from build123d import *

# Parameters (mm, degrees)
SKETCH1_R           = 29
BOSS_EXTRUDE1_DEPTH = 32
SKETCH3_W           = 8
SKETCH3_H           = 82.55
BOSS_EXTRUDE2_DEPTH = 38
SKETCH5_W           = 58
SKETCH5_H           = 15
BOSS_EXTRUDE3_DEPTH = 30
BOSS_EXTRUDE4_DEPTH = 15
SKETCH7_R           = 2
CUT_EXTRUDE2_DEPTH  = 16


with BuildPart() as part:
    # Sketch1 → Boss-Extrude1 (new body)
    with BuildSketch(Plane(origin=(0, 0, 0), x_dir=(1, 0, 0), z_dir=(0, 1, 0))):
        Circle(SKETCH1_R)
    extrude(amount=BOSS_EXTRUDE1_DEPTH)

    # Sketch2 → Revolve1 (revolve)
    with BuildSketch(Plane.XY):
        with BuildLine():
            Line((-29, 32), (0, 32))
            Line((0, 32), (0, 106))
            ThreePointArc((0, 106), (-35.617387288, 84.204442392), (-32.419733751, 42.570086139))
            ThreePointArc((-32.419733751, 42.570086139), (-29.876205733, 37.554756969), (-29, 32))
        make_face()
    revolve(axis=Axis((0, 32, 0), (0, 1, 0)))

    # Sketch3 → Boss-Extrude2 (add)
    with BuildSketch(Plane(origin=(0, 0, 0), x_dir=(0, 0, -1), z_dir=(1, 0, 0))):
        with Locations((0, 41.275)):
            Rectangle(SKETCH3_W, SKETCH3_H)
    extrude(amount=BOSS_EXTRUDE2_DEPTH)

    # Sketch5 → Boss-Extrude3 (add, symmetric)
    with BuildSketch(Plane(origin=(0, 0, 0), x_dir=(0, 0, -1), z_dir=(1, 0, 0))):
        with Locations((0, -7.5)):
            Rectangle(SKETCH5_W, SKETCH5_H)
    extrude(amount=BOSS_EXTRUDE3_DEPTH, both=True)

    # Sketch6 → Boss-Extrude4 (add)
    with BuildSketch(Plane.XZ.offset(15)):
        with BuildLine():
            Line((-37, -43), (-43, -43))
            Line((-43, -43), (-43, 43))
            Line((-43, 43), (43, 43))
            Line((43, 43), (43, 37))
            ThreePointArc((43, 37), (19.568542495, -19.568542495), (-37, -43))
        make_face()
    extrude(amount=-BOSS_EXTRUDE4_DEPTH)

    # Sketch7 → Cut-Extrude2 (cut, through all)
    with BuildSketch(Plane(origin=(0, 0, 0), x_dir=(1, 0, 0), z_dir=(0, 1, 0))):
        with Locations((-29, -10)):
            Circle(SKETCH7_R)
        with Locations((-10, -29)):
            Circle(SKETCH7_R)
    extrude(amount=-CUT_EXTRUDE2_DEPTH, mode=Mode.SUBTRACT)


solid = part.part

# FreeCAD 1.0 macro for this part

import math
import FreeCAD as App
import Part
import Sketcher

V = App.Vector

doc = App.newDocument("Part")
params = doc.addObject("Spreadsheet::Sheet", "Params")
for row, (alias, value) in enumerate([
    ("sketch1_diameter", "58 mm"),
    ("pad1_length", "32 mm"),
    ("sketch2_radius", "40 mm"),
    ("sketch2_width", "29 mm"),
    ("sketch2_height", "74 mm"),
    ("revolution_angle", "360 deg"),
    ("sketch3_height", "8 mm"),
    ("sketch3_width", "82.55 mm"),
    ("pad2_length", "38 mm"),
    ("sketch4_width", "15 mm"),
    ("sketch4_height", "58 mm"),
    ("pad3_length", "60 mm"),
    ("sketch5_radius", "80 mm"),
    ("sketch5_width", "6 mm"),
    ("pad4_length", "15 mm"),
    ("sketch6_diameter", "4 mm"),
], start=1):
    params.set(f"A{row}", alias)
    params.set(f"B{row}", "=" + value)
    params.setAlias(f"B{row}", alias)

body = doc.addObject("PartDesign::Body", "Body")

# Sketch on XZ plane
sketch1 = body.newObject("Sketcher::SketchObject", "Sketch")
sketch1.AttachmentSupport = (doc.getObject("XZ_Plane"), [""])
sketch1.MapMode = "FlatFace"
sketch1.addGeometry(Part.Circle(V(0, 0, 0), V(0, 0, 1), 29), False)
sketch1.addConstraint([
    Sketcher.Constraint("Coincident", 0, 3, -1, 1),
    Sketcher.Constraint("Diameter", 0, 58.0),
])
sketch1.setExpression("Constraints[1]", "Params.sketch1_diameter")
pad1 = body.newObject("PartDesign::Pad", "Pad")
pad1.Profile = sketch1
pad1.setExpression("Length", "Params.pad1_length")
pad1.Reversed = True

# Sketch on XY plane
sketch2 = body.newObject("Sketcher::SketchObject", "Sketch001")
sketch2.AttachmentSupport = (doc.getObject("XY_Plane"), [""])
sketch2.MapMode = "FlatFace"
sketch2.addGeometry([
    Part.LineSegment(V(-29, 32, 0), V(0, 32, 0)),
    Part.LineSegment(V(0, 32, 0), V(0, 106, 0)),
    Part.ArcOfCircle(Part.Circle(V(0, 66, 0), V(0, 0, 1), 40), math.radians(90), math.radians(216)),
    Part.ArcOfCircle(Part.Circle(V(-47, 32, 0), V(0, 0, 1), 18), math.radians(0), math.radians(36)),
], False)
sketch2.addConstraint([
    Sketcher.Constraint("Coincident", 0, 2, 1, 1),
    Sketcher.Constraint("Coincident", 1, 2, 2, 1),
    Sketcher.Constraint("Tangent", 2, 2, 3, 2),
    Sketcher.Constraint("Coincident", 3, 1, 0, 1),
    Sketcher.Constraint("Horizontal", 0),
    Sketcher.Constraint("Vertical", 1),
    Sketcher.Constraint("PointOnObject", 2, 3, -2),
    Sketcher.Constraint("PointOnObject", 0, 2, -2),
    Sketcher.Constraint("Horizontal", 3, 3, 0, 2),
    Sketcher.Constraint("Radius", 2, 40.0),
    Sketcher.Constraint("DistanceX", 0, 1, 0, 2, 29.0),
    Sketcher.Constraint("DistanceY", 1, 1, 1, 2, 74.0),
    Sketcher.Constraint("DistanceY", -1, 1, 2, 3, 66.0),
])
sketch2.setExpression("Constraints[9]", "Params.sketch2_radius")
sketch2.setExpression("Constraints[10]", "Params.sketch2_width")
sketch2.setExpression("Constraints[11]", "Params.sketch2_height")
revolution = body.newObject("PartDesign::Revolution", "Revolution")
revolution.Profile = sketch2
revolution.ReferenceAxis = (sketch2, ["V_Axis"])
revolution.setExpression("Angle", "Params.revolution_angle")

# Sketch on YZ plane
sketch3 = body.newObject("Sketcher::SketchObject", "Sketch002")
sketch3.AttachmentSupport = (doc.getObject("YZ_Plane"), [""])
sketch3.MapMode = "FlatFace"
sketch3.addGeometry([
    Part.LineSegment(V(83, 4, 0), V(0, 4, 0)),
    Part.LineSegment(V(0, 4, 0), V(0, -4, 0)),
    Part.LineSegment(V(0, -4, 0), V(83, -4, 0)),
    Part.LineSegment(V(83, -4, 0), V(83, 4, 0)),
], False)
sketch3.addConstraint([
    Sketcher.Constraint("Coincident", 0, 2, 1, 1),
    Sketcher.Constraint("Coincident", 1, 2, 2, 1),
    Sketcher.Constraint("Coincident", 2, 2, 3, 1),
    Sketcher.Constraint("Coincident", 3, 2, 0, 1),
    Sketcher.Constraint("Horizontal", 0),
    Sketcher.Constraint("Vertical", 1),
    Sketcher.Constraint("Horizontal", 2),
    Sketcher.Constraint("Vertical", 3),
    Sketcher.Constraint("Symmetric", 0, 2, 1, 2, -1, 1),
    Sketcher.Constraint("DistanceY", 1, 2, 1, 1, 8.0),
    Sketcher.Constraint("DistanceX", 0, 2, 0, 1, 82.55),
])
sketch3.setExpression("Constraints[9]", "Params.sketch3_height")
sketch3.setExpression("Constraints[10]", "Params.sketch3_width")
pad2 = body.newObject("PartDesign::Pad", "Pad001")
pad2.Profile = sketch3
pad2.setExpression("Length", "Params.pad2_length")

# Sketch on YZ plane
sketch4 = body.newObject("Sketcher::SketchObject", "Sketch003")
sketch4.AttachmentSupport = (doc.getObject("YZ_Plane"), [""])
sketch4.MapMode = "FlatFace"
sketch4.addGeometry([
    Part.LineSegment(V(0, 29, 0), V(-15, 29, 0)),
    Part.LineSegment(V(-15, 29, 0), V(-15, -29, 0)),
    Part.LineSegment(V(-15, -29, 0), V(0, -29, 0)),
    Part.LineSegment(V(0, -29, 0), V(0, 29, 0)),
], False)
sketch4.addConstraint([
    Sketcher.Constraint("Coincident", 0, 2, 1, 1),
    Sketcher.Constraint("Coincident", 1, 2, 2, 1),
    Sketcher.Constraint("Coincident", 2, 2, 3, 1),
    Sketcher.Constraint("Coincident", 3, 2, 0, 1),
    Sketcher.Constraint("Horizontal", 0),
    Sketcher.Constraint("Vertical", 1),
    Sketcher.Constraint("Horizontal", 2),
    Sketcher.Constraint("Vertical", 3),
    Sketcher.Constraint("Symmetric", 2, 2, 3, 2, -1, 1),
    Sketcher.Constraint("DistanceX", 0, 2, 0, 1, 15.0),
    Sketcher.Constraint("DistanceY", 1, 2, 1, 1, 58.0),
])
sketch4.setExpression("Constraints[9]", "Params.sketch4_width")
sketch4.setExpression("Constraints[10]", "Params.sketch4_height")
pad3 = body.newObject("PartDesign::Pad", "Pad002")
pad3.Profile = sketch4
pad3.setExpression("Length", "Params.pad3_length")
pad3.Midplane = True

# Sketch on XZ plane
sketch5 = body.newObject("Sketcher::SketchObject", "Sketch004")
sketch5.AttachmentSupport = (doc.getObject("XZ_Plane"), [""])
sketch5.MapMode = "FlatFace"
sketch5.AttachmentOffset = App.Placement(V(0, 0, 15), App.Rotation())
sketch5.addGeometry([
    Part.LineSegment(V(-43, -43, 0), V(-37, -43, 0)),  # 0
    Part.ArcOfCircle(Part.Circle(V(-37, 37, 0), V(0, 0, 1), 80), math.radians(-90), math.radians(0)),  # 1
    Part.LineSegment(V(43, 37, 0), V(43, 43, 0)),  # 2
    Part.LineSegment(V(43, 43, 0), V(-43, 43, 0)),  # 3
    Part.LineSegment(V(-43, 43, 0), V(-43, -43, 0)),  # 4
], False)
sketch5.addConstraint([
    Sketcher.Constraint("Tangent", 0, 2, 1, 1),
    Sketcher.Constraint("Tangent", 1, 2, 2, 1),
    Sketcher.Constraint("Coincident", 2, 2, 3, 1),
    Sketcher.Constraint("Coincident", 3, 2, 4, 1),
    Sketcher.Constraint("Coincident", 4, 2, 0, 1),
    Sketcher.Constraint("Horizontal", 0),
    Sketcher.Constraint("Vertical", 2),
    Sketcher.Constraint("Horizontal", 3),
    Sketcher.Constraint("Vertical", 4),
    Sketcher.Constraint("Symmetric", 2, 2, 4, 2, -1, 1),
    Sketcher.Constraint("Equal", 0, 2),
    Sketcher.Constraint("Radius", 1, 80.0),
    Sketcher.Constraint("DistanceX", 0, 1, 0, 2, 6.0),
])
sketch5.setExpression("Constraints[11]", "Params.sketch5_radius")
sketch5.setExpression("Constraints[12]", "Params.sketch5_width")
pad4 = body.newObject("PartDesign::Pad", "Pad003")
pad4.Profile = sketch5
pad4.setExpression("Length", "Params.pad4_length")
pad4.Reversed = True

# Sketch on XZ plane
sketch6 = body.newObject("Sketcher::SketchObject", "Sketch005")
sketch6.AttachmentSupport = (doc.getObject("XZ_Plane"), [""])
sketch6.MapMode = "FlatFace"
sketch6.addGeometry([
    Part.Circle(V(-29, 10, 0), V(0, 0, 1), 2),
    Part.Circle(V(-10, 29, 0), V(0, 0, 1), 2),
], False)
sketch6.addConstraint([
    Sketcher.Constraint("Equal", 0, 1),
    Sketcher.Constraint("Diameter", 0, 4.0),
    Sketcher.Constraint("DistanceX", 0, 3, -1, 1, 29.0),
    Sketcher.Constraint("DistanceY", -1, 1, 0, 3, 10.0),
    Sketcher.Constraint("DistanceX", 1, 3, -1, 1, 10.0),
    Sketcher.Constraint("DistanceY", -1, 1, 1, 3, 29.0),
])
sketch6.setExpression("Constraints[1]", "Params.sketch6_diameter")
pocket1 = body.newObject("PartDesign::Pocket", "Pocket")
pocket1.Profile = sketch6
pocket1.Type = "ThroughAll"
pocket1.Reversed = True

doc.recompute()
